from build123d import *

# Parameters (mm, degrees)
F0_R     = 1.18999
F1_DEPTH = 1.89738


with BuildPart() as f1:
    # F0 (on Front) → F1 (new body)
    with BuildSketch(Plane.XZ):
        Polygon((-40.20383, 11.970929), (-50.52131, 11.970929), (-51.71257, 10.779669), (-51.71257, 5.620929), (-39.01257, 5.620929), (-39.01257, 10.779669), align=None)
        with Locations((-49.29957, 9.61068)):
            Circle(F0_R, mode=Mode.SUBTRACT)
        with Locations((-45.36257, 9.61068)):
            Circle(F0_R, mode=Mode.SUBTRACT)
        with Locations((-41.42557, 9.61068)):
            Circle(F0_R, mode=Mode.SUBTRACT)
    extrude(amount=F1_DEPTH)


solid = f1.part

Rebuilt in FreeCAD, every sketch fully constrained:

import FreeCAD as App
import Part
import Sketcher
from FreeCAD import Vector
Q = App.Units.Quantity


def add_polygon(sketch, points):
    """Adds a closed chain of lines whose ends are joined by coincident constraints."""
    first, n = sketch.GeometryCount, len(points)
    for a, b in zip(points, points[1:] + points[:1]):
        sketch.addGeometry(Part.LineSegment(App.Vector(*a, 0), App.Vector(*b, 0)), False)
    for i in range(n):
        sketch.addConstraint(Sketcher.Constraint("Coincident", first + i, 2, first + (i + 1) % n, 1))

doc = App.newDocument("Part")
params = doc.addObject("Spreadsheet::Sheet", "Params")
for row, (alias, value) in enumerate([
    ("sketch1_width", "0.5 in"),
    ("pad1_length", "0.0747 in"),
], start=1):
    params.set(f"A{row}", alias)
    params.set(f"B{row}", "=" + value)
    params.setAlias(f"B{row}", alias)

body = doc.addObject("PartDesign::Body", "Body")

# Sketch on XZ plane
sketch1 = body.newObject("Sketcher::SketchObject", "Sketch")
sketch1.AttachmentSupport = (doc.getObject("XZ_Plane"), [""])
sketch1.MapMode = "FlatFace"
add_polygon(sketch1, [(-40.20383, 11.970929), (-50.52131, 11.970929), (-51.71257, 10.779669), (-51.71257, 5.620929), (-39.01257, 5.620929), (-39.01257, 10.779669)])  # lines 0-5
sketch1.addGeometry(Part.Circle(Vector(-49.29957, 9.61068, 0), Vector(0, 0, 1), 1.18999), False)  # 6
sketch1.addGeometry(Part.Circle(Vector(-45.36257, 9.61068, 0), Vector(0, 0, 1), 1.18999), False)  # 7
sketch1.addGeometry(Part.Circle(Vector(-41.42557, 9.61068, 0), Vector(0, 0, 1), 1.18999), False)  # 8
sketch1.addConstraint([
    Sketcher.Constraint("Horizontal", 0),
    Sketcher.Constraint("Vertical", 2),
    Sketcher.Constraint("Horizontal", 3),
    Sketcher.Constraint("Vertical", 4),
    Sketcher.Constraint("Equal", 6, 7),
    Sketcher.Constraint("Equal", 7, 8),
    Sketcher.Constraint("Perpendicular", 1, 5),
    Sketcher.Constraint("Horizontal", 6, 3, 7, 3),
    Sketcher.Constraint("Horizontal", 7, 3, 8, 3),
    Sketcher.Constraint("Horizontal", 1, 2, 4, 2),
    Sketcher.Constraint("Equal", 1, 5),
    Sketcher.Constraint("DistanceX", 3, 1, 3, 2, Q("0.5 in")),
    Sketcher.Constraint("Diameter", 6, Q("0.0937 in")),
    Sketcher.Constraint("DistanceX", 6, 3, 8, 3, Q("0.31 in")),
    Sketcher.Constraint("DistanceX", 1, 2, 7, 3, Q("0.25 in")),
    Sketcher.Constraint("DistanceY", 2, 2, 0, 2, Q("0.25 in")),
    Sketcher.Constraint("DistanceX", 0, 2, 0, 1, Q("0.4062 in")),
    Sketcher.Constraint("DistanceX", 6, 3, 7, 3, Q("0.155 in")),
    Sketcher.Constraint("DistanceX", 6, 3, -1, 1, 49.29957),
    Sketcher.Constraint("DistanceY", -1, 1, 6, 3, 9.61068),
    Sketcher.Constraint("DistanceY", -1, 1, 0, 2, 11.970929),
])
sketch1.setExpression("Constraints[17]", "Params.sketch1_width")
pad1 = body.newObject("PartDesign::Pad", "Pad")
pad1.Profile = sketch1
pad1.setExpression("Length", "Params.pad1_length")

doc.recompute()
